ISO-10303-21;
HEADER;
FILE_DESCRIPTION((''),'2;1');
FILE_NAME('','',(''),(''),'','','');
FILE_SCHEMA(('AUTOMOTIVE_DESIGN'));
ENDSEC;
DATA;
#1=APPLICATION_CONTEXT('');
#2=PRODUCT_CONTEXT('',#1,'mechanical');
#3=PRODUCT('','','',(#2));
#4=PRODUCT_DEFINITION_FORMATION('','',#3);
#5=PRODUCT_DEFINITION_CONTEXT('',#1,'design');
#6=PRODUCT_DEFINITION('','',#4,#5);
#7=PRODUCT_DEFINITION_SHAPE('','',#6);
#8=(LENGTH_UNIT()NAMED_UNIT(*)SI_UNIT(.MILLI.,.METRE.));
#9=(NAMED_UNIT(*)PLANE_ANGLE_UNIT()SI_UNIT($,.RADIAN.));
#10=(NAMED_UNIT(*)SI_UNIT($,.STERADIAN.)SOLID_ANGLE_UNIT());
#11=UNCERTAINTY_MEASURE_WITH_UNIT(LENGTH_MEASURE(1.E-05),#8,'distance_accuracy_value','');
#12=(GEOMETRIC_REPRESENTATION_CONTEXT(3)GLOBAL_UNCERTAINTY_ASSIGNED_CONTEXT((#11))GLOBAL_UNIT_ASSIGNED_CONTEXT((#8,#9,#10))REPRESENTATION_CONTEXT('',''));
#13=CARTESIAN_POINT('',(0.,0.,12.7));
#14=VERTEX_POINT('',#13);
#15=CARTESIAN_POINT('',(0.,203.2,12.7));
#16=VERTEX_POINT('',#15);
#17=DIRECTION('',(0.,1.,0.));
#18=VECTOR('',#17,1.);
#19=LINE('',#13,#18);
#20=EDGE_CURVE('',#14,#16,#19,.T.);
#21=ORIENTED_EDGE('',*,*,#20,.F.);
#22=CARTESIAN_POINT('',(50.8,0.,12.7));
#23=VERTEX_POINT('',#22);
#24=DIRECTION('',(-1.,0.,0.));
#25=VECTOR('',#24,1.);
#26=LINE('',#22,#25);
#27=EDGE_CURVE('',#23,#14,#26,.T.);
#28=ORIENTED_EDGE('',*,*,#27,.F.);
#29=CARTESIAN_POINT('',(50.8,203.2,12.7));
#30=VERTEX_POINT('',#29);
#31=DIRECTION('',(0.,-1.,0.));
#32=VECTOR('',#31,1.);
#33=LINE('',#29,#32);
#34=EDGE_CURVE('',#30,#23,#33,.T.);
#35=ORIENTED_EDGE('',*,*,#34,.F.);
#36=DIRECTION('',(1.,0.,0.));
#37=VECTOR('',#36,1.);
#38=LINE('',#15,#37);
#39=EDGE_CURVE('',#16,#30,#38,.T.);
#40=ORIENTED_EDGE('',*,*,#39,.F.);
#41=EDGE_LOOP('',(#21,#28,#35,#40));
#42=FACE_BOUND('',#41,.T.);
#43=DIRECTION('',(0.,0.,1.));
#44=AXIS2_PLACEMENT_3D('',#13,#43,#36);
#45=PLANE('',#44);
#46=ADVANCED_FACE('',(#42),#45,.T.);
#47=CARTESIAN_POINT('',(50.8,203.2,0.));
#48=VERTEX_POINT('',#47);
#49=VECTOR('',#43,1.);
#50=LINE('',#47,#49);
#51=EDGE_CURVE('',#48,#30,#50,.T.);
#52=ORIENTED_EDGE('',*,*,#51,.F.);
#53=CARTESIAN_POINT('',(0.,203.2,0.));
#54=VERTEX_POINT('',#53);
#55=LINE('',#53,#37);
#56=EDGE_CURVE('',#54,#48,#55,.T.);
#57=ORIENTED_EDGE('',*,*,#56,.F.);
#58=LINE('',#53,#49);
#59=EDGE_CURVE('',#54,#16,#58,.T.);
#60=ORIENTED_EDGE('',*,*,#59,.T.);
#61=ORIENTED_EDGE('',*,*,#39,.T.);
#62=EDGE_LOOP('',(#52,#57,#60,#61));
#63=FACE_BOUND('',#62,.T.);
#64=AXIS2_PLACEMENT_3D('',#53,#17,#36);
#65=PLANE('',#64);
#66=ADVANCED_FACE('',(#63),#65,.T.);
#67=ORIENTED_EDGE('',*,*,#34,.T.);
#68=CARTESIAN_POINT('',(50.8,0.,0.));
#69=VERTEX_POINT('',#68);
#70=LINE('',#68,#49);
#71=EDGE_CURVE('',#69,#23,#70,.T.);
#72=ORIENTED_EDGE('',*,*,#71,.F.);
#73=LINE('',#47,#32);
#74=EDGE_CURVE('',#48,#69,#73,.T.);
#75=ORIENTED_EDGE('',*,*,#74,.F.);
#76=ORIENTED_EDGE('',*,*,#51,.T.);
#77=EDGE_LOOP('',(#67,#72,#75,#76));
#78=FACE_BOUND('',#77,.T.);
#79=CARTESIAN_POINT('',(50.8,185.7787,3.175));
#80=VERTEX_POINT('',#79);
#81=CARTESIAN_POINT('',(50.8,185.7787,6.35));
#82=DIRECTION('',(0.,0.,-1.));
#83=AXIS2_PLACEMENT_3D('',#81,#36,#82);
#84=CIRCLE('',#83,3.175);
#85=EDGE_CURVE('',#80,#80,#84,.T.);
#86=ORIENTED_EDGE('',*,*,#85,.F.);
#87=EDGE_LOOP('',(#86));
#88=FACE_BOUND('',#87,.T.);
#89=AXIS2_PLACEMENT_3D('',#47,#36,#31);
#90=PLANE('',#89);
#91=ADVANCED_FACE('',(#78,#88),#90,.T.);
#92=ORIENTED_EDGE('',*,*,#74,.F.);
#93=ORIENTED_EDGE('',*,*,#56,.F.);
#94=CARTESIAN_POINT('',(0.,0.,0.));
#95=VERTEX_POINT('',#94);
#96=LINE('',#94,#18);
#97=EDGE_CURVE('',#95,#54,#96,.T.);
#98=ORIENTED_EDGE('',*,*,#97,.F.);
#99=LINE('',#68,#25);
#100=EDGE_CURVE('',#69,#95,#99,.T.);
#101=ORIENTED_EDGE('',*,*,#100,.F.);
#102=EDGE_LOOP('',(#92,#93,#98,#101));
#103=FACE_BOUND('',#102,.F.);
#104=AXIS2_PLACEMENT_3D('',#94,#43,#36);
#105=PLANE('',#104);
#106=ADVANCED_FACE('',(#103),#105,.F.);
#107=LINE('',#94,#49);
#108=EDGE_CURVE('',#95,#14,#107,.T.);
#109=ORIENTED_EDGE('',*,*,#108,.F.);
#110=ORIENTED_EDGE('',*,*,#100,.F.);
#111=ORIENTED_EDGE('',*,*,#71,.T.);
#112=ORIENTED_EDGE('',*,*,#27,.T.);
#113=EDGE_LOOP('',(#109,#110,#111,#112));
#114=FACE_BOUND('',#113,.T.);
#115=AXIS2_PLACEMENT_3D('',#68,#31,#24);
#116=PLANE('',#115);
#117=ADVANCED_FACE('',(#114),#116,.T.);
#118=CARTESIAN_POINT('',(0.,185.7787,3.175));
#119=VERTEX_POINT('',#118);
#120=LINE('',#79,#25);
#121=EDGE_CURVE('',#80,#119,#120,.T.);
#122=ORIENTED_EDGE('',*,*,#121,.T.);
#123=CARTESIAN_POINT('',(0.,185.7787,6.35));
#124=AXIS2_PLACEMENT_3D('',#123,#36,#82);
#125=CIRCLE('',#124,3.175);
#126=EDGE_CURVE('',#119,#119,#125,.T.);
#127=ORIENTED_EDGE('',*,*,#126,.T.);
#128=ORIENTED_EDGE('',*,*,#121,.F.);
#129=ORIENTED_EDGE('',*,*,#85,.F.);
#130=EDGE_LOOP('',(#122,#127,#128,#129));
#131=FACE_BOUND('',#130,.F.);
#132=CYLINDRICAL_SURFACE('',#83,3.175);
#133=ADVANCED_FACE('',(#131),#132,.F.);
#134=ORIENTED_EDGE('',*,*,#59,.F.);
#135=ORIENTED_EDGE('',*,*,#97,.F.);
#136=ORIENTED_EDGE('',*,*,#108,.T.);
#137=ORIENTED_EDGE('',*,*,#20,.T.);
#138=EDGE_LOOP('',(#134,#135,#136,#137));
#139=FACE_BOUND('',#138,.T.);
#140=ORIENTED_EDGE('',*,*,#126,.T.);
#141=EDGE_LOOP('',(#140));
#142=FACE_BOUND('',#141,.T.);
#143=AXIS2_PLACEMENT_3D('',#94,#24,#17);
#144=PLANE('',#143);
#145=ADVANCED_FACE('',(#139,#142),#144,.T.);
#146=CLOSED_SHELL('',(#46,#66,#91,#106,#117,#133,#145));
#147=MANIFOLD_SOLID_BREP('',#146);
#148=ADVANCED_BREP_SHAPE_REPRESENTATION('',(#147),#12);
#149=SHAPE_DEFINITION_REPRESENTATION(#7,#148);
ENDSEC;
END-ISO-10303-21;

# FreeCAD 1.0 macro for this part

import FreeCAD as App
import Part
import Sketcher
Q = App.Units.Quantity


def add_polygon(sketch, points):
    """Adds a closed chain of lines whose ends are joined by coincident constraints."""
    first, n = sketch.GeometryCount, len(points)
    for a, b in zip(points, points[1:] + points[:1]):
        sketch.addGeometry(Part.LineSegment(App.Vector(*a, 0), App.Vector(*b, 0)), False)
    for i in range(n):
        sketch.addConstraint(Sketcher.Constraint("Coincident", first + i, 2, first + (i + 1) % n, 1))

doc = App.newDocument("Part")
body = doc.addObject("PartDesign::Body", "Body")

# Sketch on XY plane
sketch1 = doc.addObject("Sketcher::SketchObject", "Sketch")
body.addObject(sketch1)
sketch1.AttachmentSupport = (doc.XY_Plane, [""])
sketch1.MapMode = "FlatFace"
add_polygon(sketch1, [(0, 203), (0, 0), (51, 0), (51, 203)])  # lines 0-3
sketch1.addConstraint(Sketcher.Constraint("Vertical", 0))
sketch1.addConstraint(Sketcher.Constraint("Horizontal", 1))
sketch1.addConstraint(Sketcher.Constraint("Vertical", 2))
sketch1.addConstraint(Sketcher.Constraint("Horizontal", 3))
sketch1.addConstraint(Sketcher.Constraint("Coincident", 0, 2, -1, 1))
sketch1.addConstraint(Sketcher.Constraint("DistanceX", 1, 1, 1, 2, Q("2 in")))
sketch1.addConstraint(Sketcher.Constraint("DistanceY", 0, 2, 0, 1, Q("8 in")))
pad1 = doc.addObject("PartDesign::Pad", "Pad")
body.addObject(pad1)
pad1.Profile = sketch1
pad1.Length = Q("0.5 in")

# Sketch on YZ plane
sketch2 = doc.addObject("Sketcher::SketchObject", "Sketch001")
body.addObject(sketch2)
sketch2.AttachmentSupport = (doc.YZ_Plane, [""])
sketch2.MapMode = "FlatFace"
sketch2.AttachmentOffset = App.Placement(App.Vector(0, 0, 2 * 25.4), App.Rotation())
sketch2.addGeometry(Part.Circle(App.Vector(185.8, 6.3, 0), App.Vector(0, 0, 1), 3.2), False)
sketch2.addConstraint(Sketcher.Constraint("Diameter", 0, Q("0.25 in")))
sketch2.addConstraint(Sketcher.Constraint("DistanceY", -1, 1, 0, 3, Q("0.25 in")))
sketch2.addConstraint(Sketcher.Constraint("DistanceX", -1, 1, 0, 3, Q("185.7787 mm")))
pocket1 = doc.addObject("PartDesign::Pocket", "Pocket")
body.addObject(pocket1)
pocket1.Profile = sketch2
pocket1.Length = Q("5 in")

doc.recompute()
